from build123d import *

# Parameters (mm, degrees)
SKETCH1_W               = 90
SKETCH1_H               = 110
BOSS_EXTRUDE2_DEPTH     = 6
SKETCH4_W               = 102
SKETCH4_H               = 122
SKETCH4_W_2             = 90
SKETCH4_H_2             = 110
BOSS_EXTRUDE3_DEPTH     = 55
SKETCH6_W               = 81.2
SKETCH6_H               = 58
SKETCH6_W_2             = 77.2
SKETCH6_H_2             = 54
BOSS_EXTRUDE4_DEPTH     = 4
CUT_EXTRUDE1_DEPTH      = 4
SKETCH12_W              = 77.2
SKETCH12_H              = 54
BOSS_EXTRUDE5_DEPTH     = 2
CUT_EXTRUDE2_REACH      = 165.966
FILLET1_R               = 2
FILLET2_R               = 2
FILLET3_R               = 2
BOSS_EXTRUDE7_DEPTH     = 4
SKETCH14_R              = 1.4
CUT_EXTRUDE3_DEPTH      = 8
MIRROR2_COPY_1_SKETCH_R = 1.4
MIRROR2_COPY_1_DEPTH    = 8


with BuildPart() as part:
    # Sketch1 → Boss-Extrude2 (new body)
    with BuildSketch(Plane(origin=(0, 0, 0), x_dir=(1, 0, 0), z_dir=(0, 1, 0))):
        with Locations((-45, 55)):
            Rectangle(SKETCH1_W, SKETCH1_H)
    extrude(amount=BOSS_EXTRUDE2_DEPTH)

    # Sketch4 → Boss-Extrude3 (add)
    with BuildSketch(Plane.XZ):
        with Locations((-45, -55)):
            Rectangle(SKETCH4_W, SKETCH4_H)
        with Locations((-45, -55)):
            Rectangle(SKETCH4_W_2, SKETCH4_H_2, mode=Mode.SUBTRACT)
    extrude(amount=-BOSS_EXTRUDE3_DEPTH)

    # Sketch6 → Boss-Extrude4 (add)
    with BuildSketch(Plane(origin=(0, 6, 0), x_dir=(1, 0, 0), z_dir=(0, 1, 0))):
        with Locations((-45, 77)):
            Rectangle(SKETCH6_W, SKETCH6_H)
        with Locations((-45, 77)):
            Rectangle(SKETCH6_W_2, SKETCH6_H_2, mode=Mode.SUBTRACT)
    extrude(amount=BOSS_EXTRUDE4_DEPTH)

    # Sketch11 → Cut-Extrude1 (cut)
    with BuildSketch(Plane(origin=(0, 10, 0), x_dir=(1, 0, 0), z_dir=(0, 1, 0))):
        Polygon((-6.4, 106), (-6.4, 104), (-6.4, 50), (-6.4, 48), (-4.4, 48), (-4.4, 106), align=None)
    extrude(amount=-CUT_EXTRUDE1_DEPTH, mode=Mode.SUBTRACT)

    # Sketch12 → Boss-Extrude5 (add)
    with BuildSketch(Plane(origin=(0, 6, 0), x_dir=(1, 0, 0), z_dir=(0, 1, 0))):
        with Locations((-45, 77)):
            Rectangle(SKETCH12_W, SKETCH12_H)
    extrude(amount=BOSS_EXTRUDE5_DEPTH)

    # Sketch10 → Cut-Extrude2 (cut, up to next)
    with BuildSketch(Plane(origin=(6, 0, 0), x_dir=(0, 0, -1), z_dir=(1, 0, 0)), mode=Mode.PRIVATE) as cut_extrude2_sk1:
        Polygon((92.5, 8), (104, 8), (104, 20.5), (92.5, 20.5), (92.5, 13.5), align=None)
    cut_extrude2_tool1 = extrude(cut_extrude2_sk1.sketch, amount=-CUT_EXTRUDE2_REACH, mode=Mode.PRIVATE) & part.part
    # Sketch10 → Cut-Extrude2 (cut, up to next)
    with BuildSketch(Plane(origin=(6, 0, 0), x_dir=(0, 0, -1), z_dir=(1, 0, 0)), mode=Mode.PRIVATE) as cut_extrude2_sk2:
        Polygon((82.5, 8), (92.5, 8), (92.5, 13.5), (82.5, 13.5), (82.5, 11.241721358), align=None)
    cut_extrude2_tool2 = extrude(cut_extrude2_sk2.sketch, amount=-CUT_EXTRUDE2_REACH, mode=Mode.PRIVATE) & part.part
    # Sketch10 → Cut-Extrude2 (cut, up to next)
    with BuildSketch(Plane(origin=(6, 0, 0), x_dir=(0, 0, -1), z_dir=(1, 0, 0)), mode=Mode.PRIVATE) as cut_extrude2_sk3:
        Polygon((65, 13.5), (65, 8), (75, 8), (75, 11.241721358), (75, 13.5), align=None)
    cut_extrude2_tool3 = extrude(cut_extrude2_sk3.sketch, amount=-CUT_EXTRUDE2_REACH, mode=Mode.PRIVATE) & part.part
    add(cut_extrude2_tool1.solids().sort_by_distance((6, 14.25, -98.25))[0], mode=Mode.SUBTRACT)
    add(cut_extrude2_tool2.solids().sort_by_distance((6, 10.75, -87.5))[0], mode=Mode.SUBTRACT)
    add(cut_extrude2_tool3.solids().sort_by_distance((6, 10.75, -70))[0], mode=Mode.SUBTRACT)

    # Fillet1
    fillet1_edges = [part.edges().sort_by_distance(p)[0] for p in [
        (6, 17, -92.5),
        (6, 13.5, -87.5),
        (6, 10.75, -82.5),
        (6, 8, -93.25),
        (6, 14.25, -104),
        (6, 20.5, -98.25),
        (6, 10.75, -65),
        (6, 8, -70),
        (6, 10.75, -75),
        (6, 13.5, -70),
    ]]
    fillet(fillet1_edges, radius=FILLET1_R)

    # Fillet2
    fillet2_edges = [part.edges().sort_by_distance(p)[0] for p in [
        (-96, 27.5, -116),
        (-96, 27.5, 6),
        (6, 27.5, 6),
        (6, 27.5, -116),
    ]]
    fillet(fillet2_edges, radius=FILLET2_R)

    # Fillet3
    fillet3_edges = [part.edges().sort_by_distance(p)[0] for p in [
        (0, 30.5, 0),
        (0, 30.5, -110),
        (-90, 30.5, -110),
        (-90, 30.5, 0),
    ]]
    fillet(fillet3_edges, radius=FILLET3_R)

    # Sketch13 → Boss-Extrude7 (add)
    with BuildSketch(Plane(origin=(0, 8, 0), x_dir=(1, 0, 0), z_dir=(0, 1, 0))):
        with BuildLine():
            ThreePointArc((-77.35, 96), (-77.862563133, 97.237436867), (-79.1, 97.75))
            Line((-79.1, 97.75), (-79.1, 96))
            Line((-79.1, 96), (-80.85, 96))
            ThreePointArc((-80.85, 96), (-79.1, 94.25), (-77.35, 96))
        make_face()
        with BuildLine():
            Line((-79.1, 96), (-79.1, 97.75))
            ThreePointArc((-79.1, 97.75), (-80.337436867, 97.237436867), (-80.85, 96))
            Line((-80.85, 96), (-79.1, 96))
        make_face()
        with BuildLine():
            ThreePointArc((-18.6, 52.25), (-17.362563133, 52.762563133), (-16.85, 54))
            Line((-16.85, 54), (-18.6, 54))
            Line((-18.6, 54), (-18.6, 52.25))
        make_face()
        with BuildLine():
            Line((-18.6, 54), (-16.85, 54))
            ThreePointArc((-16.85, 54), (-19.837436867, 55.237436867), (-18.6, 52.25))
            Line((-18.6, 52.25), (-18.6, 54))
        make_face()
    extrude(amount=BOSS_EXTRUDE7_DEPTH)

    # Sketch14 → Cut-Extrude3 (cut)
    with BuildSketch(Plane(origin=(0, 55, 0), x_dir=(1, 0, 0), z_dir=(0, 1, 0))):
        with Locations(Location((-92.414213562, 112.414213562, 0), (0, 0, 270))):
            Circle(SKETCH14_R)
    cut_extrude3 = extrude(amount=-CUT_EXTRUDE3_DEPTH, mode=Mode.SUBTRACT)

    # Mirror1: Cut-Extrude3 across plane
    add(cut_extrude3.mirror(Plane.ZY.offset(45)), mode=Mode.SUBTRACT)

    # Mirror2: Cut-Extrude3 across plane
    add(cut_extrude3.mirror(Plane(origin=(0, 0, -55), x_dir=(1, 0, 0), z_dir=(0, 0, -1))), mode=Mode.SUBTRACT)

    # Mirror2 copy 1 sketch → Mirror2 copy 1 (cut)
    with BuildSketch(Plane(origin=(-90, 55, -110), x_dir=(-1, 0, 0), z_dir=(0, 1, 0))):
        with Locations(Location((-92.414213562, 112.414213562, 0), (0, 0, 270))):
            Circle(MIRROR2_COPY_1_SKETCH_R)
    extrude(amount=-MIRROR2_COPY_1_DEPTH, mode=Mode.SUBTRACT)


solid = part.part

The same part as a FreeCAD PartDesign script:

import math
import FreeCAD as App
import Part
import Sketcher

V = App.Vector


def edges_at(feature, points):
    """Names of the edges that pass closest to the given points."""
    edges = feature.Shape.Edges
    near = lambda p: min(range(len(edges)), key=lambda i: edges[i].distToShape(Part.Vertex(*p))[0])
    return sorted({f"Edge{near(p) + 1}" for p in points})


def add_polygon(sketch, points):
    """Adds a closed chain of lines whose ends are joined by coincident constraints."""
    first, n = sketch.GeometryCount, len(points)
    for a, b in zip(points, points[1:] + points[:1]):
        sketch.addGeometry(Part.LineSegment(App.Vector(*a, 0), App.Vector(*b, 0)), False)
    for i in range(n):
        sketch.addConstraint(Sketcher.Constraint("Coincident", first + i, 2, first + (i + 1) % n, 1))

doc = App.newDocument("Part")
params = doc.addObject("Spreadsheet::Sheet", "Params")
for row, (alias, value) in enumerate([
    ("sketch1_width", "90 mm"),
    ("sketch1_height", "110 mm"),
    ("pad1_length", "6 mm"),
    ("sketch2_width", "102 mm"),
    ("sketch2_width2", "90 mm"),
    ("sketch2_height", "122 mm"),
    ("sketch2_height2", "110 mm"),
    ("pad2_length", "55 mm"),
    ("sketch3_height", "58 mm"),
    ("sketch3_height2", "54 mm"),
    ("sketch3_width", "81.2 mm"),
    ("sketch3_width2", "77.2 mm"),
    ("pad3_length", "4 mm"),
    ("sketch4_width", "2 mm"),
    ("sketch4_height", "58 mm"),
    ("pocket1_length", "4 mm"),
    ("sketch5_height", "54 mm"),
    ("sketch5_width", "77.2 mm"),
    ("pad4_length", "2 mm"),
    ("sketch6_width", "12.5 mm"),
    ("sketch6_height", "11.5 mm"),
    ("sketch7_height", "10 mm"),
    ("sketch7_width", "5.5 mm"),
    ("sketch8_height", "10 mm"),
    ("sketch8_width", "5.5 mm"),
    ("fillet_radius", "2 mm"),
    ("fillet2_radius", "2 mm"),
    ("fillet3_radius", "2 mm"),
    ("sketch9_radius", "1.75 mm"),
    ("pad5_length", "4 mm"),
    ("sketch10_diameter", "2.8 mm"),
    ("pocket5_length", "8 mm"),
    ("sketch11_diameter", "2.8 mm"),
    ("pocket6_length", "8 mm"),
], start=1):
    params.set(f"A{row}", alias)
    params.set(f"B{row}", "=" + value)
    params.setAlias(f"B{row}", alias)

body = doc.addObject("PartDesign::Body", "Body")

# Sketch on XZ plane
sketch1 = doc.addObject("Sketcher::SketchObject", "Sketch")
body.addObject(sketch1)
sketch1.AttachmentSupport = (doc.XZ_Plane, [""])
sketch1.MapMode = "FlatFace"
add_polygon(sketch1, [(-90, -110), (-90, 0), (0, 0), (0, -110)])  # lines 0-3
sketch1.addConstraint([
    Sketcher.Constraint("Vertical", 0),
    Sketcher.Constraint("Horizontal", 1),
    Sketcher.Constraint("Vertical", 2),
    Sketcher.Constraint("Horizontal", 3),
    Sketcher.Constraint("Coincident", 1, 2, -1, 1),
    Sketcher.Constraint("DistanceX", 1, 1, 1, 2, 90.0),
    Sketcher.Constraint("DistanceY", 0, 1, 0, 2, 110.0),
])
sketch1.setExpression("Constraints[9]", "Params.sketch1_width")
sketch1.setExpression("Constraints[10]", "Params.sketch1_height")
pad1 = doc.addObject("PartDesign::Pad", "Pad")
body.addObject(pad1)
pad1.Profile = sketch1
pad1.setExpression("Length", "Params.pad1_length")
pad1.Reversed = True

# Sketch on XZ plane
sketch2 = doc.addObject("Sketcher::SketchObject", "Sketch001")
body.addObject(sketch2)
sketch2.AttachmentSupport = (doc.XZ_Plane, [""])
sketch2.MapMode = "FlatFace"
add_polygon(sketch2, [(-96, 6), (-96, -116), (6, -116), (6, 6)])  # lines 0-3
add_polygon(sketch2, [(0, -110), (-90, -110), (-90, 0), (0, 0)])  # lines 4-7
sketch2.addConstraint([
    Sketcher.Constraint("Vertical", 0),
    Sketcher.Constraint("Horizontal", 1),
    Sketcher.Constraint("Vertical", 2),
    Sketcher.Constraint("Horizontal", 3),
    Sketcher.Constraint("Horizontal", 4),
    Sketcher.Constraint("Vertical", 5),
    Sketcher.Constraint("Horizontal", 6),
    Sketcher.Constraint("Vertical", 7),
    Sketcher.Constraint("Coincident", 6, 2, -1, 1),
    Sketcher.Constraint("DistanceX", 1, 1, 1, 2, 102.0),
    Sketcher.Constraint("DistanceX", 4, 2, 4, 1, 90.0),
    Sketcher.Constraint("DistanceY", 0, 2, 0, 1, 122.0),
    Sketcher.Constraint("DistanceY", 5, 1, 5, 2, 110.0),
    Sketcher.Constraint("DistanceX", 0, 2, -1, 1, 96.0),
    Sketcher.Constraint("DistanceY", 0, 2, -1, 1, 116.0),
])
sketch2.setExpression("Constraints[17]", "Params.sketch2_width")
sketch2.setExpression("Constraints[18]", "Params.sketch2_width2")
sketch2.setExpression("Constraints[19]", "Params.sketch2_height")
sketch2.setExpression("Constraints[20]", "Params.sketch2_height2")
pad2 = doc.addObject("PartDesign::Pad", "Pad001")
body.addObject(pad2)
pad2.Profile = sketch2
pad2.setExpression("Length", "Params.pad2_length")
pad2.Reversed = True

# Sketch on XZ plane
sketch3 = doc.addObject("Sketcher::SketchObject", "Sketch002")
body.addObject(sketch3)
sketch3.AttachmentSupport = (doc.XZ_Plane, [""])
sketch3.MapMode = "FlatFace"
sketch3.AttachmentOffset = App.Placement(V(0, 0, -6), App.Rotation())
add_polygon(sketch3, [(-86, -106), (-86, -48), (-4, -48), (-4, -106)])  # lines 0-3
add_polygon(sketch3, [(-6, -50), (-84, -50), (-84, -104), (-6, -104)])  # lines 4-7
sketch3.addConstraint([
    Sketcher.Constraint("Vertical", 0),
    Sketcher.Constraint("Horizontal", 1),
    Sketcher.Constraint("Vertical", 2),
    Sketcher.Constraint("Horizontal", 3),
    Sketcher.Constraint("Horizontal", 4),
    Sketcher.Constraint("Vertical", 5),
    Sketcher.Constraint("Horizontal", 6),
    Sketcher.Constraint("Vertical", 7),
    Sketcher.Constraint("DistanceY", 0, 1, 0, 2, 58.0),
    Sketcher.Constraint("DistanceY", 5, 2, 5, 1, 54.0),
    Sketcher.Constraint("DistanceX", 1, 1, 1, 2, 81.2),
    Sketcher.Constraint("DistanceX", 4, 2, 4, 1, 77.2),
    Sketcher.Constraint("DistanceY", 0, 2, -1, 1, 48.0),
    Sketcher.Constraint("DistanceY", 4, 2, -1, 1, 50.0),
    Sketcher.Constraint("DistanceX", 0, 2, 4, 2, 2.0),
    Sketcher.Constraint("DistanceX", 0, 2, -1, 1, 85.6),
])
sketch3.setExpression("Constraints[16]", "Params.sketch3_height")
sketch3.setExpression("Constraints[17]", "Params.sketch3_height2")
sketch3.setExpression("Constraints[18]", "Params.sketch3_width")
sketch3.setExpression("Constraints[19]", "Params.sketch3_width2")
pad3 = doc.addObject("PartDesign::Pad", "Pad002")
body.addObject(pad3)
pad3.Profile = sketch3
pad3.setExpression("Length", "Params.pad3_length")
pad3.Reversed = True

# Sketch on XZ plane
sketch4 = doc.addObject("Sketcher::SketchObject", "Sketch003")
body.addObject(sketch4)
sketch4.AttachmentSupport = (doc.XZ_Plane, [""])
sketch4.MapMode = "FlatFace"
sketch4.AttachmentOffset = App.Placement(V(0, 0, -10), App.Rotation())
add_polygon(sketch4, [(-6.4, -106), (-6.4, -48), (-4.4, -48), (-4.4, -106)])  # lines 0-3
sketch4.addConstraint([
    Sketcher.Constraint("Vertical", 0),
    Sketcher.Constraint("Horizontal", 1),
    Sketcher.Constraint("Vertical", 2),
    Sketcher.Constraint("Horizontal", 3),
    Sketcher.Constraint("DistanceX", 1, 1, 1, 2, 2.0),
    Sketcher.Constraint("DistanceY", 0, 1, 0, 2, 58.0),
    Sketcher.Constraint("DistanceY", 0, 2, -1, 1, 48.0),
    Sketcher.Constraint("DistanceX", 0, 2, -1, 1, 6.4),
])
sketch4.setExpression("Constraints[8]", "Params.sketch4_width")
sketch4.setExpression("Constraints[9]", "Params.sketch4_height")
pocket1 = doc.addObject("PartDesign::Pocket", "Pocket")
body.addObject(pocket1)
pocket1.Profile = sketch4
pocket1.setExpression("Length", "Params.pocket1_length")
pocket1.Reversed = True

# Sketch on XZ plane
sketch5 = doc.addObject("Sketcher::SketchObject", "Sketch004")
body.addObject(sketch5)
sketch5.AttachmentSupport = (doc.XZ_Plane, [""])
sketch5.MapMode = "FlatFace"
sketch5.AttachmentOffset = App.Placement(V(0, 0, -6), App.Rotation())
add_polygon(sketch5, [(-84, -104), (-84, -50), (-6, -50), (-6, -104)])  # lines 0-3
sketch5.addConstraint([
    Sketcher.Constraint("Vertical", 0),
    Sketcher.Constraint("Horizontal", 1),
    Sketcher.Constraint("Vertical", 2),
    Sketcher.Constraint("Horizontal", 3),
    Sketcher.Constraint("DistanceY", 0, 1, 0, 2, 54.0),
    Sketcher.Constraint("DistanceX", 1, 1, 1, 2, 77.2),
    Sketcher.Constraint("DistanceY", 0, 2, -1, 1, 50.0),
    Sketcher.Constraint("DistanceX", 0, 2, -1, 1, 83.6),
])
sketch5.setExpression("Constraints[8]", "Params.sketch5_height")
sketch5.setExpression("Constraints[9]", "Params.sketch5_width")
pad4 = doc.addObject("PartDesign::Pad", "Pad003")
body.addObject(pad4)
pad4.Profile = sketch5
pad4.setExpression("Length", "Params.pad4_length")
pad4.Reversed = True

# Sketch on YZ plane
sketch6 = doc.addObject("Sketcher::SketchObject", "Sketch005")
body.addObject(sketch6)
sketch6.AttachmentSupport = (doc.YZ_Plane, [""])
sketch6.MapMode = "FlatFace"
sketch6.AttachmentOffset = App.Placement(V(0, 0, 6), App.Rotation())
add_polygon(sketch6, [(8, -92), (8, -104), (20, -104), (20, -92)])  # lines 0-3
sketch6.addConstraint([
    Sketcher.Constraint("Vertical", 0),
    Sketcher.Constraint("Horizontal", 1),
    Sketcher.Constraint("Vertical", 2),
    Sketcher.Constraint("Horizontal", 3),
    Sketcher.Constraint("DistanceX", 1, 1, 1, 2, 12.5),
    Sketcher.Constraint("DistanceY", 0, 2, 0, 1, 11.5),
    Sketcher.Constraint("DistanceX", -1, 1, 0, 2, 8.0),
    Sketcher.Constraint("DistanceY", 0, 2, -1, 1, 104.0),
])
sketch6.setExpression("Constraints[8]", "Params.sketch6_width")
sketch6.setExpression("Constraints[9]", "Params.sketch6_height")
pocket2 = doc.addObject("PartDesign::Pocket", "Pocket001")
body.addObject(pocket2)
pocket2.Profile = sketch6
pocket2.Type = "UpToFirst"

# Sketch on YZ plane
sketch7 = doc.addObject("Sketcher::SketchObject", "Sketch006")
body.addObject(sketch7)
sketch7.AttachmentSupport = (doc.YZ_Plane, [""])
sketch7.MapMode = "FlatFace"
sketch7.AttachmentOffset = App.Placement(V(0, 0, 6), App.Rotation())
add_polygon(sketch7, [(8, -82), (8, -92), (14, -92), (14, -82)])  # lines 0-3
sketch7.addConstraint([
    Sketcher.Constraint("Vertical", 0),
    Sketcher.Constraint("Horizontal", 1),
    Sketcher.Constraint("Vertical", 2),
    Sketcher.Constraint("Horizontal", 3),
    Sketcher.Constraint("DistanceY", 0, 2, 0, 1, 10.0),
    Sketcher.Constraint("DistanceX", 1, 1, 1, 2, 5.5),
    Sketcher.Constraint("DistanceX", -1, 1, 0, 2, 8.0),
    Sketcher.Constraint("DistanceY", 0, 2, -1, 1, 92.5),
])
sketch7.setExpression("Constraints[8]", "Params.sketch7_height")
sketch7.setExpression("Constraints[9]", "Params.sketch7_width")
pocket3 = doc.addObject("PartDesign::Pocket", "Pocket002")
body.addObject(pocket3)
pocket3.Profile = sketch7
pocket3.Type = "UpToFirst"

# Sketch on YZ plane
sketch8 = doc.addObject("Sketcher::SketchObject", "Sketch007")
body.addObject(sketch8)
sketch8.AttachmentSupport = (doc.YZ_Plane, [""])
sketch8.MapMode = "FlatFace"
sketch8.AttachmentOffset = App.Placement(V(0, 0, 6), App.Rotation())
add_polygon(sketch8, [(14, -65), (8, -65), (8, -75), (14, -75)])  # lines 0-3
sketch8.addConstraint([
    Sketcher.Constraint("Horizontal", 0),
    Sketcher.Constraint("Vertical", 1),
    Sketcher.Constraint("Horizontal", 2),
    Sketcher.Constraint("Vertical", 3),
    Sketcher.Constraint("DistanceY", 1, 2, 1, 1, 10.0),
    Sketcher.Constraint("DistanceX", 0, 2, 0, 1, 5.5),
    Sketcher.Constraint("DistanceX", -1, 1, 0, 2, 8.0),
    Sketcher.Constraint("DistanceY", 0, 2, -1, 1, 65.0),
])
sketch8.setExpression("Constraints[8]", "Params.sketch8_height")
sketch8.setExpression("Constraints[9]", "Params.sketch8_width")
pocket4 = doc.addObject("PartDesign::Pocket", "Pocket003")
body.addObject(pocket4)
pocket4.Profile = sketch8
pocket4.Type = "UpToFirst"
doc.recompute()

fillet = doc.addObject("PartDesign::Fillet", "Fillet")
body.addObject(fillet)
fillet.Base = (pocket4, edges_at(pocket4, [
    (6, 17, -92.5),
    (6, 13.5, -87.5),
    (6, 10.75, -82.5),
    (6, 8, -93.25),
    (6, 14.25, -104),
    (6, 20.5, -98.25),
    (6, 10.75, -65),
    (6, 8, -70),
    (6, 10.75, -75),
    (6, 13.5, -70),
]))
fillet.setExpression("Radius", "Params.fillet_radius")
doc.recompute()

fillet2 = doc.addObject("PartDesign::Fillet", "Fillet001")
body.addObject(fillet2)
fillet2.Base = (fillet, edges_at(fillet, [
    (-96, 27.5, -116),
    (-96, 27.5, 6),
    (6, 27.5, 6),
    (6, 27.5, -116),
]))
fillet2.setExpression("Radius", "Params.fillet2_radius")
doc.recompute()

fillet3 = doc.addObject("PartDesign::Fillet", "Fillet002")
body.addObject(fillet3)
fillet3.Base = (fillet2, edges_at(fillet2, [
    (0, 30.5, 0),
    (0, 30.5, -110),
    (-90, 30.5, -110),
    (-90, 30.5, 0),
]))
fillet3.setExpression("Radius", "Params.fillet3_radius")

# Sketch on XZ plane
sketch9 = doc.addObject("Sketcher::SketchObject", "Sketch008")
body.addObject(sketch9)
sketch9.AttachmentSupport = (doc.XZ_Plane, [""])
sketch9.MapMode = "FlatFace"
sketch9.AttachmentOffset = App.Placement(V(0, 0, -8), App.Rotation())
sketch9.addGeometry([
    Part.ArcOfCircle(Part.Circle(V(-79.1, -96, 0), V(0, 0, 1), 1.8), math.radians(-90), math.radians(0)),  # 0
    Part.ArcOfCircle(Part.Circle(V(-79.1, -96, 0), V(0, 0, 1), 1.8), math.radians(180), math.radians(270)),  # 1
    Part.ArcOfCircle(Part.Circle(V(-79.1, -96, 0), V(0, 0, 1), 1.8), math.radians(0), math.radians(180)),  # 2
    Part.ArcOfCircle(Part.Circle(V(-18.6, -54, 0), V(0, 0, 1), 1.8), math.radians(0), math.radians(90)),  # 3
    Part.ArcOfCircle(Part.Circle(V(-18.6, -54, 0), V(0, 0, 1), 1.8), math.radians(90), math.radians(360)),  # 4
], False)
sketch9.addConstraint([
    Sketcher.Constraint("Tangent", 0, 1, 1, 2),
    Sketcher.Constraint("Tangent", 1, 1, 2, 2),
    Sketcher.Constraint("Tangent", 2, 1, 0, 2),
    Sketcher.Constraint("Tangent", 3, 1, 4, 2),
    Sketcher.Constraint("Coincident", 4, 1, 3, 2),
    Sketcher.Constraint("Equal", 2, 3),
    Sketcher.Constraint("Horizontal", 2, 3, 1, 1),
    Sketcher.Constraint("Horizontal", 1, 1, 2, 1),
    Sketcher.Constraint("Horizontal", 4, 3, 3, 1),
    Sketcher.Constraint("Vertical", 2, 3, 0, 1),
    Sketcher.Constraint("Vertical", 3, 3, 4, 1),
    Sketcher.Constraint("Radius", 0, 1.75),
    Sketcher.Constraint("DistanceY", 0, 3, -1, 1, 96.0),
    Sketcher.Constraint("DistanceY", 3, 3, -1, 1, 54.0),
    Sketcher.Constraint("DistanceX", 0, 3, -1, 1, 79.1),
    Sketcher.Constraint("DistanceX", 3, 3, -1, 1, 18.6),
])
sketch9.setExpression("Constraints[11]", "Params.sketch9_radius")
pad5 = doc.addObject("PartDesign::Pad", "Pad004")
body.addObject(pad5)
pad5.Profile = sketch9
pad5.setExpression("Length", "Params.pad5_length")
pad5.Reversed = True

# Sketch on XZ plane
sketch10 = doc.addObject("Sketcher::SketchObject", "Sketch009")
body.addObject(sketch10)
sketch10.AttachmentSupport = (doc.XZ_Plane, [""])
sketch10.MapMode = "FlatFace"
sketch10.AttachmentOffset = App.Placement(V(0, 0, -55), App.Rotation())
sketch10.addGeometry(Part.Circle(V(-92.4, -112.4, 0), V(0, 0, 1), 1.4), False)
sketch10.addConstraint([
    Sketcher.Constraint("Diameter", 0, 2.8),
    Sketcher.Constraint("DistanceX", 0, 3, -1, 1, 92.414214),
    Sketcher.Constraint("DistanceY", 0, 3, -1, 1, 112.414214),
])
sketch10.setExpression("Constraints[0]", "Params.sketch10_diameter")
pocket5 = doc.addObject("PartDesign::Pocket", "Pocket004")
body.addObject(pocket5)
pocket5.Profile = sketch10
pocket5.setExpression("Length", "Params.pocket5_length")
pocket5.Reversed = True
doc.recompute()

datumplane = doc.addObject("PartDesign::Plane", "DatumPlane")
body.addObject(datumplane)
datumplane.AttachmentSupport = (doc.YZ_Plane, [""])
datumplane.MapMode = "FlatFace"
datumplane.AttachmentOffset = App.Placement(V(0, 0, -45), App.Rotation())
mirrored = doc.addObject("PartDesign::Mirrored", "Mirrored")
body.addObject(mirrored)
mirrored.Originals = [pocket5]
mirrored.MirrorPlane = (datumplane, [""])
body.Tip = mirrored
doc.recompute()

datumplane2 = doc.addObject("PartDesign::Plane", "DatumPlane001")
body.addObject(datumplane2)
datumplane2.AttachmentSupport = (doc.XY_Plane, [""])
datumplane2.MapMode = "FlatFace"
datumplane2.AttachmentOffset = App.Placement(V(0, 0, -55), App.Rotation())
mirrored2 = doc.addObject("PartDesign::Mirrored", "Mirrored001")
body.addObject(mirrored2)
mirrored2.Originals = [pocket5]
mirrored2.MirrorPlane = (datumplane2, [""])
body.Tip = mirrored2

# Sketch on XZ plane
sketch11 = doc.addObject("Sketcher::SketchObject", "Sketch010")
body.addObject(sketch11)
sketch11.AttachmentSupport = (doc.XZ_Plane, [""])
sketch11.MapMode = "FlatFace"
sketch11.AttachmentOffset = App.Placement(V(0, 0, -55), App.Rotation())
sketch11.addGeometry(Part.Circle(V(2.4, 2.4, 0), V(0, 0, 1), 1.4), False)
sketch11.addConstraint([
    Sketcher.Constraint("Diameter", 0, 2.8),
    Sketcher.Constraint("DistanceX", -1, 1, 0, 3, 2.414214),
    Sketcher.Constraint("DistanceY", -1, 1, 0, 3, 2.414214),
])
sketch11.setExpression("Constraints[0]", "Params.sketch11_diameter")
pocket6 = doc.addObject("PartDesign::Pocket", "Pocket005")
body.addObject(pocket6)
pocket6.Profile = sketch11
pocket6.setExpression("Length", "Params.pocket6_length")
pocket6.Reversed = True

doc.recompute()
